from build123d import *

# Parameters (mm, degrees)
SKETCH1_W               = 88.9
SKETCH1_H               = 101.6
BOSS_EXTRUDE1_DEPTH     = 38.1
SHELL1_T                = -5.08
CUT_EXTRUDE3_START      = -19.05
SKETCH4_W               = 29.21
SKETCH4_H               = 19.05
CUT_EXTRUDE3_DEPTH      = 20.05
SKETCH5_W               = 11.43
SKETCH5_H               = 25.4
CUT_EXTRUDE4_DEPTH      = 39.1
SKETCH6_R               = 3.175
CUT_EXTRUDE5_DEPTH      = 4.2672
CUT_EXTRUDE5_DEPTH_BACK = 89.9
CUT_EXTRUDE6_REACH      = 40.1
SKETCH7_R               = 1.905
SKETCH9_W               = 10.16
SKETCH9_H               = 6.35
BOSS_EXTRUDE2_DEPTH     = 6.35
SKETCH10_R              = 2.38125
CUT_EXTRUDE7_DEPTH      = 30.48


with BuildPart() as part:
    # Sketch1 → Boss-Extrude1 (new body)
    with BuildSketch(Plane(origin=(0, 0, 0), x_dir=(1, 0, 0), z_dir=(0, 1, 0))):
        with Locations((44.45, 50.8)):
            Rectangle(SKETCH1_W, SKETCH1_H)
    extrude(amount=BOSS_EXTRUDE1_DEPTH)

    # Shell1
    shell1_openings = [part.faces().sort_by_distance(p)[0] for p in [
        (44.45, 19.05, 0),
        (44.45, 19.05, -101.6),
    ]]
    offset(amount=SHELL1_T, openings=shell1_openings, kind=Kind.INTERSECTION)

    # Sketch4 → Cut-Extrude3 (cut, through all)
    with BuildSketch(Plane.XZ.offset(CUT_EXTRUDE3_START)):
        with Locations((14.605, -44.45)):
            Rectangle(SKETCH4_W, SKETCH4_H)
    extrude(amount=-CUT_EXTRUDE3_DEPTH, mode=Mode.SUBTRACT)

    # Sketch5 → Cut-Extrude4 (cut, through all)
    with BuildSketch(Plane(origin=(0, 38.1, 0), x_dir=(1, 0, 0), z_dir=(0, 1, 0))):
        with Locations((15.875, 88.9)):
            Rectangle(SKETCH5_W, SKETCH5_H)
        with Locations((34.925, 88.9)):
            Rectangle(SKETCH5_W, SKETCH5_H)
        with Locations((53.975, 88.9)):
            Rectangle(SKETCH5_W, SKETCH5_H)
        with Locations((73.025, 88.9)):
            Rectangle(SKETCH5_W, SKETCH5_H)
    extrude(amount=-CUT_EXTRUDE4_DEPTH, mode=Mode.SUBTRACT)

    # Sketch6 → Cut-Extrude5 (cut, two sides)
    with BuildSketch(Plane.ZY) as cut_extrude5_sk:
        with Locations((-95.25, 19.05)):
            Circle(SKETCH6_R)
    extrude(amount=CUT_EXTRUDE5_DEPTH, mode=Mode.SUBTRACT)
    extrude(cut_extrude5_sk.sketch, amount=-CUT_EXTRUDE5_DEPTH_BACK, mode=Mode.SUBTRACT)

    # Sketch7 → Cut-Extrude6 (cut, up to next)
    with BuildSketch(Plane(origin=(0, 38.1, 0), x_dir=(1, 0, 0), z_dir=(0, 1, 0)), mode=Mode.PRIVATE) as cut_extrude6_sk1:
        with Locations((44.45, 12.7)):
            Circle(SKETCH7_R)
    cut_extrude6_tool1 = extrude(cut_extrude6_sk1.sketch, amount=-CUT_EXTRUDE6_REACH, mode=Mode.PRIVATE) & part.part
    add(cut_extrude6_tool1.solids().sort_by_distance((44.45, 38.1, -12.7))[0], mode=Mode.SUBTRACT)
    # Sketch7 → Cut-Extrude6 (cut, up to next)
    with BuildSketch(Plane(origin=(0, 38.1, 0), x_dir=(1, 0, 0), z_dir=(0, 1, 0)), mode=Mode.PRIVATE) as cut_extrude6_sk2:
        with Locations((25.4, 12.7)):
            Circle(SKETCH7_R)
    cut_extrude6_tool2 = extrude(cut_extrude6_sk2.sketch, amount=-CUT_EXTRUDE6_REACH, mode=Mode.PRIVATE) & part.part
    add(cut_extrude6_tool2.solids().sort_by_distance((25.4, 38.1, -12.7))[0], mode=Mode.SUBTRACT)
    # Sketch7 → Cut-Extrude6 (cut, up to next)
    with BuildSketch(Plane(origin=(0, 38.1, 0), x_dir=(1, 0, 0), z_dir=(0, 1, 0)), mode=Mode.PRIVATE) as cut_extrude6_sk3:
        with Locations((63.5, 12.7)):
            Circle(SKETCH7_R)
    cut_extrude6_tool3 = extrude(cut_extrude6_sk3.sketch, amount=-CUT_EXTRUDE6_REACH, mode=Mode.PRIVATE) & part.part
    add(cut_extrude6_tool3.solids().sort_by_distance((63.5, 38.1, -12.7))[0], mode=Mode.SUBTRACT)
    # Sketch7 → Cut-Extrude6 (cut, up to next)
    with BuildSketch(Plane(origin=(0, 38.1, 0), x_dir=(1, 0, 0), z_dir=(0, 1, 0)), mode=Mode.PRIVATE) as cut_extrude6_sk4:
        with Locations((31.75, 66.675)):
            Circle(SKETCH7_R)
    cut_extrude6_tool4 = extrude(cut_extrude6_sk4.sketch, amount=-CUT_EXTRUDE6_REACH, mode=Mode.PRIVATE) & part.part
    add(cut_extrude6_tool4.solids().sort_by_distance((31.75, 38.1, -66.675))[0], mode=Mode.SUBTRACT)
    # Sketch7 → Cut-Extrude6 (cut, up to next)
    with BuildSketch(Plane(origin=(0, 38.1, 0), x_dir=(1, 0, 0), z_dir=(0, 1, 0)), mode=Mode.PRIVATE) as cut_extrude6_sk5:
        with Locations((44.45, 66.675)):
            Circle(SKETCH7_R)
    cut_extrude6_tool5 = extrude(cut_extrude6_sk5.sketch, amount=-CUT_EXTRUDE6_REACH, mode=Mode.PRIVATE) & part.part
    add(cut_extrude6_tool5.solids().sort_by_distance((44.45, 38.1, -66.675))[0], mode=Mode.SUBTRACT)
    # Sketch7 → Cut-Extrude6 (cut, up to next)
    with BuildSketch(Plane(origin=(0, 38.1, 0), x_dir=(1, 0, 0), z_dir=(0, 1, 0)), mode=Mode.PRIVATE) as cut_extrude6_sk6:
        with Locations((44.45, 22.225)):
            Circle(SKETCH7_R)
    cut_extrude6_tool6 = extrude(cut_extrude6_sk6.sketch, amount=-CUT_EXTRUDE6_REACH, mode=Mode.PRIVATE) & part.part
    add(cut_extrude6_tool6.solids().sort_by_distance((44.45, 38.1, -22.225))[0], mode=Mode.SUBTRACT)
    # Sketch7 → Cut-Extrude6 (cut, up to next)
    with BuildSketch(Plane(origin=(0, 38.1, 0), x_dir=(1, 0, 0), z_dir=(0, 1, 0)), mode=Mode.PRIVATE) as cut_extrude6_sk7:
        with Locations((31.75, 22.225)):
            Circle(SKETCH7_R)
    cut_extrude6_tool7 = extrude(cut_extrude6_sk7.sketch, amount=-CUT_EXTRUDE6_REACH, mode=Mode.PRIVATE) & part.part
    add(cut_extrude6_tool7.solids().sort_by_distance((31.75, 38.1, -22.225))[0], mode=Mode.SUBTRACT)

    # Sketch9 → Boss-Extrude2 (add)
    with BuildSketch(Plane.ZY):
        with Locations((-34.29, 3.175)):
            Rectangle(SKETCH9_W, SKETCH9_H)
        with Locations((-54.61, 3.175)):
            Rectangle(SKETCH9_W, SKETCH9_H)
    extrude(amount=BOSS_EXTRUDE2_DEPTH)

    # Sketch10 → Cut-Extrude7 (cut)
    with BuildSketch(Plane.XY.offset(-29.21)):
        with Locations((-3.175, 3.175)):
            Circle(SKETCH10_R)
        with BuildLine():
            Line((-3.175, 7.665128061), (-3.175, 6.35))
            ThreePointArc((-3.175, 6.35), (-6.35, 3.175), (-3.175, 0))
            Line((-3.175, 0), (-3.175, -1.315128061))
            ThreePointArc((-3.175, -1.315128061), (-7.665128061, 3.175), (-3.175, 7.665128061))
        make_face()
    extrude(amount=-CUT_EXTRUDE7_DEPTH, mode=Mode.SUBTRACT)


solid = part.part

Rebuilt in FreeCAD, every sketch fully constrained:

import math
import FreeCAD as App
import Part
import Sketcher
from FreeCAD import Vector
Q = App.Units.Quantity


def faces_at(feature, points):
    """Names of the faces that lie closest to the given points."""
    faces = feature.Shape.Faces
    near = lambda p: min(range(len(faces)), key=lambda i: faces[i].distToShape(Part.Vertex(*p))[0])
    return sorted({f"Face{near(p) + 1}" for p in points})

doc = App.newDocument("Part")
body = doc.addObject("PartDesign::Body", "Body")

# Sketch on XZ plane
sketch1 = body.newObject("Sketcher::SketchObject", "Sketch")
sketch1.AttachmentSupport = (doc.getObject("XZ_Plane"), [""])
sketch1.MapMode = "FlatFace"
sketch1.addGeometry([
    Part.LineSegment(Vector(0, -102, 0), Vector(0, 0, 0)),
    Part.LineSegment(Vector(0, 0, 0), Vector(89, 0, 0)),
    Part.LineSegment(Vector(89, 0, 0), Vector(89, -102, 0)),
    Part.LineSegment(Vector(89, -102, 0), Vector(0, -102, 0)),
], False)
sketch1.addConstraint([
    Sketcher.Constraint("Coincident", 0, 2, 1, 1),
    Sketcher.Constraint("Coincident", 1, 2, 2, 1),
    Sketcher.Constraint("Coincident", 2, 2, 3, 1),
    Sketcher.Constraint("Coincident", 3, 2, 0, 1),
    Sketcher.Constraint("Vertical", 0),
    Sketcher.Constraint("Horizontal", 1),
    Sketcher.Constraint("Vertical", 2),
    Sketcher.Constraint("Horizontal", 3),
    Sketcher.Constraint("Coincident", 0, 2, -1, 1),
    Sketcher.Constraint("DistanceY", 0, 1, 0, 2, Q("4 in")),
    Sketcher.Constraint("DistanceX", 1, 1, 1, 2, Q("3.5 in")),
])
pad1 = body.newObject("PartDesign::Pad", "Pad")
pad1.Profile = sketch1
pad1.Length = Q("1.5 in")
pad1.Reversed = True
doc.recompute()

thickness = body.newObject("PartDesign::Thickness", "Thickness")
thickness.Base = (pad1, faces_at(pad1, [(44.45, 19.05, 0), (44.45, 19.05, -101.6)]))
thickness.Value = Q("0.2 in")
thickness.Reversed = True
thickness.Join = "Intersection"

# Sketch on XZ plane
sketch2 = body.newObject("Sketcher::SketchObject", "Sketch001")
sketch2.AttachmentSupport = (doc.getObject("XZ_Plane"), [""])
sketch2.MapMode = "FlatFace"
sketch2.AttachmentOffset = App.Placement(Vector(0, 0, -0.75 * 25.4), App.Rotation())
sketch2.addGeometry([
    Part.LineSegment(Vector(0, -35, 0), Vector(0, -54, 0)),
    Part.LineSegment(Vector(0, -54, 0), Vector(29, -54, 0)),
    Part.LineSegment(Vector(29, -54, 0), Vector(29, -35, 0)),
    Part.LineSegment(Vector(29, -35, 0), Vector(0, -35, 0)),
], False)
sketch2.addConstraint([
    Sketcher.Constraint("Coincident", 0, 2, 1, 1),
    Sketcher.Constraint("Coincident", 1, 2, 2, 1),
    Sketcher.Constraint("Coincident", 2, 2, 3, 1),
    Sketcher.Constraint("Coincident", 3, 2, 0, 1),
    Sketcher.Constraint("Vertical", 0),
    Sketcher.Constraint("Horizontal", 1),
    Sketcher.Constraint("Vertical", 2),
    Sketcher.Constraint("Horizontal", 3),
    Sketcher.Constraint("PointOnObject", 0, 2, -2),
    Sketcher.Constraint("DistanceX", 1, 1, 1, 2, Q("1.15 in")),
    Sketcher.Constraint("DistanceY", 0, 2, 0, 1, Q("0.75 in")),
    Sketcher.Constraint("DistanceY", 0, 2, -1, 1, Q("2.125 in")),
])
pocket1 = body.newObject("PartDesign::Pocket", "Pocket")
pocket1.Profile = sketch2
pocket1.Type = "ThroughAll"

# Sketch on XZ plane
sketch3 = body.newObject("Sketcher::SketchObject", "Sketch002")
sketch3.AttachmentSupport = (doc.getObject("XZ_Plane"), [""])
sketch3.MapMode = "FlatFace"
sketch3.AttachmentOffset = App.Placement(Vector(0, 0, -1.5 * 25.4), App.Rotation())
sketch3.addGeometry([
    Part.LineSegment(Vector(10, -102, 0), Vector(10, -76, 0)),  # 0
    Part.LineSegment(Vector(10, -76, 0), Vector(22, -76, 0)),  # 1
    Part.LineSegment(Vector(22, -76, 0), Vector(22, -102, 0)),  # 2
    Part.LineSegment(Vector(22, -102, 0), Vector(10, -102, 0)),  # 3
    Part.LineSegment(Vector(29, -102, 0), Vector(29, -76, 0)),  # 4
    Part.LineSegment(Vector(29, -76, 0), Vector(41, -76, 0)),  # 5
    Part.LineSegment(Vector(41, -76, 0), Vector(41, -102, 0)),  # 6
    Part.LineSegment(Vector(41, -102, 0), Vector(29, -102, 0)),  # 7
    Part.LineSegment(Vector(48, -102, 0), Vector(48, -76, 0)),  # 8
    Part.LineSegment(Vector(48, -76, 0), Vector(60, -76, 0)),  # 9
    Part.LineSegment(Vector(60, -76, 0), Vector(60, -102, 0)),  # 10
    Part.LineSegment(Vector(60, -102, 0), Vector(48, -102, 0)),  # 11
    Part.LineSegment(Vector(67, -102, 0), Vector(67, -76, 0)),  # 12
    Part.LineSegment(Vector(67, -76, 0), Vector(79, -76, 0)),  # 13
    Part.LineSegment(Vector(79, -76, 0), Vector(79, -102, 0)),  # 14
    Part.LineSegment(Vector(79, -102, 0), Vector(67, -102, 0)),  # 15
], False)
sketch3.addConstraint([
    Sketcher.Constraint("Coincident", 0, 2, 1, 1),
    Sketcher.Constraint("Coincident", 1, 2, 2, 1),
    Sketcher.Constraint("Coincident", 2, 2, 3, 1),
    Sketcher.Constraint("Coincident", 3, 2, 0, 1),
    Sketcher.Constraint("Coincident", 4, 2, 5, 1),
    Sketcher.Constraint("Coincident", 5, 2, 6, 1),
    Sketcher.Constraint("Coincident", 6, 2, 7, 1),
    Sketcher.Constraint("Coincident", 7, 2, 4, 1),
    Sketcher.Constraint("Coincident", 8, 2, 9, 1),
    Sketcher.Constraint("Coincident", 9, 2, 10, 1),
    Sketcher.Constraint("Coincident", 10, 2, 11, 1),
    Sketcher.Constraint("Coincident", 11, 2, 8, 1),
    Sketcher.Constraint("Coincident", 12, 2, 13, 1),
    Sketcher.Constraint("Coincident", 13, 2, 14, 1),
    Sketcher.Constraint("Coincident", 14, 2, 15, 1),
    Sketcher.Constraint("Coincident", 15, 2, 12, 1),
    Sketcher.Constraint("Vertical", 0),
    Sketcher.Constraint("Horizontal", 1),
    Sketcher.Constraint("Vertical", 2),
    Sketcher.Constraint("Horizontal", 3),
    Sketcher.Constraint("Vertical", 4),
    Sketcher.Constraint("Horizontal", 5),
    Sketcher.Constraint("Vertical", 6),
    Sketcher.Constraint("Horizontal", 7),
    Sketcher.Constraint("Vertical", 8),
    Sketcher.Constraint("Horizontal", 9),
    Sketcher.Constraint("Vertical", 10),
    Sketcher.Constraint("Horizontal", 11),
    Sketcher.Constraint("Vertical", 12),
    Sketcher.Constraint("Horizontal", 13),
    Sketcher.Constraint("Vertical", 14),
    Sketcher.Constraint("Horizontal", 15),
    Sketcher.Constraint("Horizontal", 1, 2, 4, 2),
    Sketcher.Constraint("Horizontal", 3, 2, 6, 2),
    Sketcher.Constraint("Horizontal", 5, 2, 8, 2),
    Sketcher.Constraint("Horizontal", 7, 2, 10, 2),
    Sketcher.Constraint("Horizontal", 9, 2, 12, 2),
    Sketcher.Constraint("Horizontal", 11, 2, 14, 2),
    Sketcher.Constraint("Equal", 3, 5),
    Sketcher.Constraint("Equal", 7, 9),
    Sketcher.Constraint("Equal", 11, 13),
    Sketcher.Constraint("DistanceY", 0, 1, 0, 2, Q("1 in")),
    Sketcher.Constraint("DistanceY", 0, 2, -1, 1, Q("3 in")),
    Sketcher.Constraint("DistanceX", 1, 1, 1, 2, Q("0.45 in")),
    Sketcher.Constraint("DistanceX", -1, 1, 0, 2, Q("0.4 in")),
    Sketcher.Constraint("DistanceX", -1, 1, 5, 2, Q("1.6 in")),
    Sketcher.Constraint("DistanceX", -1, 1, 8, 2, Q("1.9 in")),
    Sketcher.Constraint("DistanceX", -1, 1, 13, 2, Q("3.1 in")),
])
pocket2 = body.newObject("PartDesign::Pocket", "Pocket001")
pocket2.Profile = sketch3
pocket2.Type = "ThroughAll"
pocket2.Reversed = True

# Sketch on YZ plane
sketch4 = body.newObject("Sketcher::SketchObject", "Sketch003")
sketch4.AttachmentSupport = (doc.getObject("YZ_Plane"), [""])
sketch4.MapMode = "FlatFace"
sketch4.addGeometry(Part.Circle(Vector(19.1, -95.2, 0), Vector(0, 0, 1), 3.2), False)
sketch4.addConstraint([
    Sketcher.Constraint("Diameter", 0, Q("0.25 in")),
    Sketcher.Constraint("DistanceX", -1, 1, 0, 3, Q("0.75 in")),
    Sketcher.Constraint("DistanceY", 0, 3, -1, 1, Q("3.75 in")),
])
pocket3 = body.newObject("PartDesign::Pocket", "Pocket002")
pocket3.Profile = sketch4
pocket3.Type = "ThroughAll"
pocket3.Midplane = True

# Sketch on XZ plane
sketch5 = body.newObject("Sketcher::SketchObject", "Sketch004")
sketch5.AttachmentSupport = (doc.getObject("XZ_Plane"), [""])
sketch5.MapMode = "FlatFace"
sketch5.AttachmentOffset = App.Placement(Vector(0, 0, -1.5 * 25.4), App.Rotation())
sketch5.addGeometry(Part.Circle(Vector(44.5, -12.7, 0), Vector(0, 0, 1), 1.9), False)
sketch5.addConstraint([
    Sketcher.Constraint("Diameter", 0, Q("0.15 in")),
    Sketcher.Constraint("DistanceY", 0, 3, -1, 1, Q("0.5 in")),
    Sketcher.Constraint("DistanceX", -1, 1, 0, 3, Q("1.75 in")),
])
pocket4 = body.newObject("PartDesign::Pocket", "Pocket003")
pocket4.Profile = sketch5
pocket4.Type = "UpToFirst"
pocket4.Reversed = True

# Sketch on XZ plane
sketch6 = body.newObject("Sketcher::SketchObject", "Sketch005")
sketch6.AttachmentSupport = (doc.getObject("XZ_Plane"), [""])
sketch6.MapMode = "FlatFace"
sketch6.AttachmentOffset = App.Placement(Vector(0, 0, -1.5 * 25.4), App.Rotation())
sketch6.addGeometry(Part.Circle(Vector(25.4, -12.7, 0), Vector(0, 0, 1), 1.9), False)
sketch6.addConstraint([
    Sketcher.Constraint("Diameter", 0, Q("0.15 in")),
    Sketcher.Constraint("DistanceX", -1, 1, 0, 3, Q("1 in")),
    Sketcher.Constraint("DistanceY", 0, 3, -1, 1, Q("0.5 in")),
])
pocket5 = body.newObject("PartDesign::Pocket", "Pocket004")
pocket5.Profile = sketch6
pocket5.Type = "UpToFirst"
pocket5.Reversed = True

# Sketch on XZ plane
sketch7 = body.newObject("Sketcher::SketchObject", "Sketch006")
sketch7.AttachmentSupport = (doc.getObject("XZ_Plane"), [""])
sketch7.MapMode = "FlatFace"
sketch7.AttachmentOffset = App.Placement(Vector(0, 0, -1.5 * 25.4), App.Rotation())
sketch7.addGeometry(Part.Circle(Vector(63.5, -12.7, 0), Vector(0, 0, 1), 1.9), False)
sketch7.addConstraint([
    Sketcher.Constraint("Diameter", 0, Q("0.15 in")),
    Sketcher.Constraint("DistanceX", -1, 1, 0, 3, Q("2.5 in")),
    Sketcher.Constraint("DistanceY", 0, 3, -1, 1, Q("0.5 in")),
])
pocket6 = body.newObject("PartDesign::Pocket", "Pocket005")
pocket6.Profile = sketch7
pocket6.Type = "UpToFirst"
pocket6.Reversed = True

# Sketch on XZ plane
sketch8 = body.newObject("Sketcher::SketchObject", "Sketch007")
sketch8.AttachmentSupport = (doc.getObject("XZ_Plane"), [""])
sketch8.MapMode = "FlatFace"
sketch8.AttachmentOffset = App.Placement(Vector(0, 0, -1.5 * 25.4), App.Rotation())
sketch8.addGeometry(Part.Circle(Vector(31.8, -66.7, 0), Vector(0, 0, 1), 1.9), False)
sketch8.addConstraint([
    Sketcher.Constraint("Diameter", 0, Q("0.15 in")),
    Sketcher.Constraint("DistanceX", -1, 1, 0, 3, Q("1.25 in")),
    Sketcher.Constraint("DistanceY", 0, 3, -1, 1, Q("2.625 in")),
])
pocket7 = body.newObject("PartDesign::Pocket", "Pocket006")
pocket7.Profile = sketch8
pocket7.Type = "UpToFirst"
pocket7.Reversed = True

# Sketch on XZ plane
sketch9 = body.newObject("Sketcher::SketchObject", "Sketch008")
sketch9.AttachmentSupport = (doc.getObject("XZ_Plane"), [""])
sketch9.MapMode = "FlatFace"
sketch9.AttachmentOffset = App.Placement(Vector(0, 0, -1.5 * 25.4), App.Rotation())
sketch9.addGeometry(Part.Circle(Vector(44.5, -66.7, 0), Vector(0, 0, 1), 1.9), False)
sketch9.addConstraint([
    Sketcher.Constraint("Diameter", 0, Q("0.15 in")),
    Sketcher.Constraint("DistanceX", -1, 1, 0, 3, Q("1.75 in")),
    Sketcher.Constraint("DistanceY", 0, 3, -1, 1, Q("2.625 in")),
])
pocket8 = body.newObject("PartDesign::Pocket", "Pocket007")
pocket8.Profile = sketch9
pocket8.Type = "UpToFirst"
pocket8.Reversed = True

# Sketch on XZ plane
sketch10 = body.newObject("Sketcher::SketchObject", "Sketch009")
sketch10.AttachmentSupport = (doc.getObject("XZ_Plane"), [""])
sketch10.MapMode = "FlatFace"
sketch10.AttachmentOffset = App.Placement(Vector(0, 0, -1.5 * 25.4), App.Rotation())
sketch10.addGeometry(Part.Circle(Vector(44.5, -22.2, 0), Vector(0, 0, 1), 1.9), False)
sketch10.addConstraint([
    Sketcher.Constraint("Diameter", 0, Q("0.15 in")),
    Sketcher.Constraint("DistanceX", -1, 1, 0, 3, Q("1.75 in")),
    Sketcher.Constraint("DistanceY", 0, 3, -1, 1, Q("0.875 in")),
])
pocket9 = body.newObject("PartDesign::Pocket", "Pocket008")
pocket9.Profile = sketch10
pocket9.Type = "UpToFirst"
pocket9.Reversed = True

# Sketch on XZ plane
sketch11 = body.newObject("Sketcher::SketchObject", "Sketch010")
sketch11.AttachmentSupport = (doc.getObject("XZ_Plane"), [""])
sketch11.MapMode = "FlatFace"
sketch11.AttachmentOffset = App.Placement(Vector(0, 0, -1.5 * 25.4), App.Rotation())
sketch11.addGeometry(Part.Circle(Vector(31.8, -22.2, 0), Vector(0, 0, 1), 1.9), False)
sketch11.addConstraint([
    Sketcher.Constraint("Diameter", 0, Q("0.15 in")),
    Sketcher.Constraint("DistanceX", -1, 1, 0, 3, Q("1.25 in")),
    Sketcher.Constraint("DistanceY", 0, 3, -1, 1, Q("0.875 in")),
])
pocket10 = body.newObject("PartDesign::Pocket", "Pocket009")
pocket10.Profile = sketch11
pocket10.Type = "UpToFirst"
pocket10.Reversed = True

# Sketch on YZ plane
sketch12 = body.newObject("Sketcher::SketchObject", "Sketch011")
sketch12.AttachmentSupport = (doc.getObject("YZ_Plane"), [""])
sketch12.MapMode = "FlatFace"
sketch12.addGeometry([
    Part.LineSegment(Vector(6, -39, 0), Vector(0, -39, 0)),  # 0
    Part.LineSegment(Vector(0, -39, 0), Vector(0, -29, 0)),  # 1
    Part.LineSegment(Vector(0, -29, 0), Vector(6, -29, 0)),  # 2
    Part.LineSegment(Vector(6, -29, 0), Vector(6, -39, 0)),  # 3
    Part.LineSegment(Vector(6, -60, 0), Vector(0, -60, 0)),  # 4
    Part.LineSegment(Vector(0, -60, 0), Vector(0, -50, 0)),  # 5
    Part.LineSegment(Vector(0, -50, 0), Vector(6, -50, 0)),  # 6
    Part.LineSegment(Vector(6, -50, 0), Vector(6, -60, 0)),  # 7
], False)
sketch12.addConstraint([
    Sketcher.Constraint("Coincident", 0, 2, 1, 1),
    Sketcher.Constraint("Coincident", 1, 2, 2, 1),
    Sketcher.Constraint("Coincident", 2, 2, 3, 1),
    Sketcher.Constraint("Coincident", 3, 2, 0, 1),
    Sketcher.Constraint("Coincident", 4, 2, 5, 1),
    Sketcher.Constraint("Coincident", 5, 2, 6, 1),
    Sketcher.Constraint("Coincident", 6, 2, 7, 1),
    Sketcher.Constraint("Coincident", 7, 2, 4, 1),
    Sketcher.Constraint("Horizontal", 0),
    Sketcher.Constraint("Vertical", 1),
    Sketcher.Constraint("Horizontal", 2),
    Sketcher.Constraint("Vertical", 3),
    Sketcher.Constraint("Horizontal", 4),
    Sketcher.Constraint("Vertical", 5),
    Sketcher.Constraint("Horizontal", 6),
    Sketcher.Constraint("Vertical", 7),
    Sketcher.Constraint("PointOnObject", 0, 2, -2),
    Sketcher.Constraint("PointOnObject", 4, 2, -2),
    Sketcher.Constraint("Vertical", 3, 2, 6, 2),
    Sketcher.Constraint("Equal", 3, 5),
    Sketcher.Constraint("DistanceY", 1, 1, 1, 2, Q("0.4 in")),
    Sketcher.Constraint("DistanceX", 0, 2, 0, 1, Q("0.25 in")),
    Sketcher.Constraint("DistanceY", 4, 2, 0, 2, Q("0.8 in")),
    Sketcher.Constraint("DistanceY", 0, 2, -1, 1, Q("1.55 in")),
])
pad2 = body.newObject("PartDesign::Pad", "Pad001")
pad2.Profile = sketch12
pad2.Length = Q("0.25 in")
pad2.Reversed = True

# Sketch on XY plane
sketch13 = body.newObject("Sketcher::SketchObject", "Sketch012")
sketch13.AttachmentSupport = (doc.getObject("XY_Plane"), [""])
sketch13.MapMode = "FlatFace"
sketch13.AttachmentOffset = App.Placement(Vector(0, 0, -1.15 * 25.4), App.Rotation())
sketch13.addGeometry([
    Part.Circle(Vector(-3.2, 3.2, 0), Vector(0, 0, 1), 2.4),  # 0
    Part.LineSegment(Vector(-3.2, 6.3, 0), Vector(-3.2, 7.7, 0)),  # 1
    Part.ArcOfCircle(Part.Circle(Vector(-3.2, 3.2, 0), Vector(0, 0, 1), 4.5), math.radians(90), math.radians(270)),  # 2
    Part.LineSegment(Vector(-3.2, -1.3, 0), Vector(-3.2, 0, 0)),  # 3
    Part.ArcOfCircle(Part.Circle(Vector(-3.2, 3.2, 0), Vector(0, 0, 1), 3.2), math.radians(90), math.radians(270)),  # 4
], False)
sketch13.addConstraint([
    Sketcher.Constraint("Coincident", 1, 2, 2, 1),
    Sketcher.Constraint("Coincident", 2, 2, 3, 1),
    Sketcher.Constraint("Coincident", 3, 2, 4, 2),
    Sketcher.Constraint("Coincident", 4, 1, 1, 1),
    Sketcher.Constraint("Vertical", 1),
    Sketcher.Constraint("Vertical", 3),
    Sketcher.Constraint("Coincident", 2, 3, 0, 3),
    Sketcher.Constraint("Coincident", 4, 3, 0, 3),
    Sketcher.Constraint("PointOnObject", 3, 2, -1),
    Sketcher.Constraint("Vertical", 4, 3, 1, 2),
    Sketcher.Constraint("Vertical", 1, 2, 2, 2),
    Sketcher.Constraint("Diameter", 0, Q("0.1875 in")),
    Sketcher.Constraint("Radius", 4, Q("0.125 in")),
    Sketcher.Constraint("DistanceX", 0, 3, -1, 1, Q("0.125 in")),
    Sketcher.Constraint("Radius", 2, Q("4.490128 mm")),
])
pocket11 = body.newObject("PartDesign::Pocket", "Pocket010")
pocket11.Profile = sketch13
pocket11.Length = Q("1.2 in")

doc.recompute()
